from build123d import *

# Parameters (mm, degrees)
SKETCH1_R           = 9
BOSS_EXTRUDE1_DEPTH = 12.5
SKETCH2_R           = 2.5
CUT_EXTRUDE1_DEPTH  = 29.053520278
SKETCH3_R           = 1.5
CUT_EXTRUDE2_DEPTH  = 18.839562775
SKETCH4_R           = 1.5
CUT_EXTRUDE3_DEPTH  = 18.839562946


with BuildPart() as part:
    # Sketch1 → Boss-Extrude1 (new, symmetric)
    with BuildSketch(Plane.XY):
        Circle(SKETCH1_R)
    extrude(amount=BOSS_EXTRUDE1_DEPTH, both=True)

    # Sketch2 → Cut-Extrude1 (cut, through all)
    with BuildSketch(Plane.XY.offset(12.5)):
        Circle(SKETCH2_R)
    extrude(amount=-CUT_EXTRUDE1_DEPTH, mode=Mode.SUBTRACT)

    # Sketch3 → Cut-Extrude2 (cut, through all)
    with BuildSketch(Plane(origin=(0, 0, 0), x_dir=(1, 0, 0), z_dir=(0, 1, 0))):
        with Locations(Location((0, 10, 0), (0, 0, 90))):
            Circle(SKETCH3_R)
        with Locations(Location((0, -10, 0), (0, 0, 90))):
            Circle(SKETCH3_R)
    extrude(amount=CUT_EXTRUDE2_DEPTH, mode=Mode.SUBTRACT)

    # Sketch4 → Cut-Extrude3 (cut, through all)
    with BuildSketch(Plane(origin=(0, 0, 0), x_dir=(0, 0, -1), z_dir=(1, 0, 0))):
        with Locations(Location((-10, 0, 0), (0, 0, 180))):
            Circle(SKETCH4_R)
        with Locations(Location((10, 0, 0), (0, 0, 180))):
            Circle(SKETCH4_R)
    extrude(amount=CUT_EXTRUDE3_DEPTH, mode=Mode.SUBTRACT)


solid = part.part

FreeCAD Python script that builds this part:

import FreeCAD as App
import Part
import Sketcher
Q = App.Units.Quantity

doc = App.newDocument("Part")
body = doc.addObject("PartDesign::Body", "Body")

# Sketch on XY plane
sketch1 = body.newObject("Sketcher::SketchObject", "Sketch")
sketch1.AttachmentSupport = (doc.getObject("XY_Plane"), [""])
sketch1.MapMode = "FlatFace"
sketch1.addGeometry(Part.Circle(App.Vector(0, 0, 0), App.Vector(0, 0, 1), 9), False)
sketch1.addConstraint(Sketcher.Constraint("Coincident", 0, 3, -1, 1))
sketch1.addConstraint(Sketcher.Constraint("Diameter", 0, Q("18 mm")))
pad1 = body.newObject("PartDesign::Pad", "Pad")
pad1.Profile = sketch1
pad1.Length = 25
pad1.Midplane = True

# Sketch on XY plane
sketch2 = body.newObject("Sketcher::SketchObject", "Sketch001")
sketch2.AttachmentSupport = (doc.getObject("XY_Plane"), [""])
sketch2.MapMode = "FlatFace"
sketch2.AttachmentOffset = App.Placement(App.Vector(0, 0, 12.5), App.Rotation())
sketch2.addGeometry(Part.Circle(App.Vector(0, 0, 0), App.Vector(0, 0, 1), 2.5), False)
sketch2.addConstraint(Sketcher.Constraint("Coincident", 0, 3, -1, 1))
sketch2.addConstraint(Sketcher.Constraint("Diameter", 0, Q("5 mm")))
pocket1 = body.newObject("PartDesign::Pocket", "Pocket")
pocket1.Profile = sketch2
pocket1.Type = "ThroughAll"

# Sketch on XZ plane
sketch3 = body.newObject("Sketcher::SketchObject", "Sketch002")
sketch3.AttachmentSupport = (doc.getObject("XZ_Plane"), [""])
sketch3.MapMode = "FlatFace"
sketch3.addGeometry(Part.Circle(App.Vector(0, -10, 0), App.Vector(0, 0, 1), 1.5), False)
sketch3.addGeometry(Part.Circle(App.Vector(0, 10, 0), App.Vector(0, 0, 1), 1.5), False)
sketch3.addConstraint(Sketcher.Constraint("Equal", 0, 1))
sketch3.addConstraint(Sketcher.Constraint("Symmetric", 0, 3, 1, 3, -1, 1))
sketch3.addConstraint(Sketcher.Constraint("PointOnObject", 0, 3, -2))
sketch3.addConstraint(Sketcher.Constraint("Diameter", 0, Q("3 mm")))
sketch3.addConstraint(Sketcher.Constraint("DistanceY", 0, 3, -1, 1, Q("10 mm")))
pocket2 = body.newObject("PartDesign::Pocket", "Pocket001")
pocket2.Profile = sketch3
pocket2.Type = "ThroughAll"

# Sketch on YZ plane
sketch4 = body.newObject("Sketcher::SketchObject", "Sketch003")
sketch4.AttachmentSupport = (doc.getObject("YZ_Plane"), [""])
sketch4.MapMode = "FlatFace"
sketch4.addGeometry(Part.Circle(App.Vector(0, 10, 0), App.Vector(0, 0, 1), 1.5), False)
sketch4.addGeometry(Part.Circle(App.Vector(0, -10, 0), App.Vector(0, 0, 1), 1.5), False)
sketch4.addConstraint(Sketcher.Constraint("Equal", 0, 1))
sketch4.addConstraint(Sketcher.Constraint("Symmetric", 0, 3, 1, 3, -1, 1))
sketch4.addConstraint(Sketcher.Constraint("PointOnObject", 0, 3, -2))
sketch4.addConstraint(Sketcher.Constraint("Diameter", 0, Q("3 mm")))
sketch4.addConstraint(Sketcher.Constraint("DistanceY", -1, 1, 0, 3, Q("10 mm")))
pocket3 = body.newObject("PartDesign::Pocket", "Pocket002")
pocket3.Profile = sketch4
pocket3.Type = "ThroughAll"
pocket3.Reversed = True

doc.recompute()
